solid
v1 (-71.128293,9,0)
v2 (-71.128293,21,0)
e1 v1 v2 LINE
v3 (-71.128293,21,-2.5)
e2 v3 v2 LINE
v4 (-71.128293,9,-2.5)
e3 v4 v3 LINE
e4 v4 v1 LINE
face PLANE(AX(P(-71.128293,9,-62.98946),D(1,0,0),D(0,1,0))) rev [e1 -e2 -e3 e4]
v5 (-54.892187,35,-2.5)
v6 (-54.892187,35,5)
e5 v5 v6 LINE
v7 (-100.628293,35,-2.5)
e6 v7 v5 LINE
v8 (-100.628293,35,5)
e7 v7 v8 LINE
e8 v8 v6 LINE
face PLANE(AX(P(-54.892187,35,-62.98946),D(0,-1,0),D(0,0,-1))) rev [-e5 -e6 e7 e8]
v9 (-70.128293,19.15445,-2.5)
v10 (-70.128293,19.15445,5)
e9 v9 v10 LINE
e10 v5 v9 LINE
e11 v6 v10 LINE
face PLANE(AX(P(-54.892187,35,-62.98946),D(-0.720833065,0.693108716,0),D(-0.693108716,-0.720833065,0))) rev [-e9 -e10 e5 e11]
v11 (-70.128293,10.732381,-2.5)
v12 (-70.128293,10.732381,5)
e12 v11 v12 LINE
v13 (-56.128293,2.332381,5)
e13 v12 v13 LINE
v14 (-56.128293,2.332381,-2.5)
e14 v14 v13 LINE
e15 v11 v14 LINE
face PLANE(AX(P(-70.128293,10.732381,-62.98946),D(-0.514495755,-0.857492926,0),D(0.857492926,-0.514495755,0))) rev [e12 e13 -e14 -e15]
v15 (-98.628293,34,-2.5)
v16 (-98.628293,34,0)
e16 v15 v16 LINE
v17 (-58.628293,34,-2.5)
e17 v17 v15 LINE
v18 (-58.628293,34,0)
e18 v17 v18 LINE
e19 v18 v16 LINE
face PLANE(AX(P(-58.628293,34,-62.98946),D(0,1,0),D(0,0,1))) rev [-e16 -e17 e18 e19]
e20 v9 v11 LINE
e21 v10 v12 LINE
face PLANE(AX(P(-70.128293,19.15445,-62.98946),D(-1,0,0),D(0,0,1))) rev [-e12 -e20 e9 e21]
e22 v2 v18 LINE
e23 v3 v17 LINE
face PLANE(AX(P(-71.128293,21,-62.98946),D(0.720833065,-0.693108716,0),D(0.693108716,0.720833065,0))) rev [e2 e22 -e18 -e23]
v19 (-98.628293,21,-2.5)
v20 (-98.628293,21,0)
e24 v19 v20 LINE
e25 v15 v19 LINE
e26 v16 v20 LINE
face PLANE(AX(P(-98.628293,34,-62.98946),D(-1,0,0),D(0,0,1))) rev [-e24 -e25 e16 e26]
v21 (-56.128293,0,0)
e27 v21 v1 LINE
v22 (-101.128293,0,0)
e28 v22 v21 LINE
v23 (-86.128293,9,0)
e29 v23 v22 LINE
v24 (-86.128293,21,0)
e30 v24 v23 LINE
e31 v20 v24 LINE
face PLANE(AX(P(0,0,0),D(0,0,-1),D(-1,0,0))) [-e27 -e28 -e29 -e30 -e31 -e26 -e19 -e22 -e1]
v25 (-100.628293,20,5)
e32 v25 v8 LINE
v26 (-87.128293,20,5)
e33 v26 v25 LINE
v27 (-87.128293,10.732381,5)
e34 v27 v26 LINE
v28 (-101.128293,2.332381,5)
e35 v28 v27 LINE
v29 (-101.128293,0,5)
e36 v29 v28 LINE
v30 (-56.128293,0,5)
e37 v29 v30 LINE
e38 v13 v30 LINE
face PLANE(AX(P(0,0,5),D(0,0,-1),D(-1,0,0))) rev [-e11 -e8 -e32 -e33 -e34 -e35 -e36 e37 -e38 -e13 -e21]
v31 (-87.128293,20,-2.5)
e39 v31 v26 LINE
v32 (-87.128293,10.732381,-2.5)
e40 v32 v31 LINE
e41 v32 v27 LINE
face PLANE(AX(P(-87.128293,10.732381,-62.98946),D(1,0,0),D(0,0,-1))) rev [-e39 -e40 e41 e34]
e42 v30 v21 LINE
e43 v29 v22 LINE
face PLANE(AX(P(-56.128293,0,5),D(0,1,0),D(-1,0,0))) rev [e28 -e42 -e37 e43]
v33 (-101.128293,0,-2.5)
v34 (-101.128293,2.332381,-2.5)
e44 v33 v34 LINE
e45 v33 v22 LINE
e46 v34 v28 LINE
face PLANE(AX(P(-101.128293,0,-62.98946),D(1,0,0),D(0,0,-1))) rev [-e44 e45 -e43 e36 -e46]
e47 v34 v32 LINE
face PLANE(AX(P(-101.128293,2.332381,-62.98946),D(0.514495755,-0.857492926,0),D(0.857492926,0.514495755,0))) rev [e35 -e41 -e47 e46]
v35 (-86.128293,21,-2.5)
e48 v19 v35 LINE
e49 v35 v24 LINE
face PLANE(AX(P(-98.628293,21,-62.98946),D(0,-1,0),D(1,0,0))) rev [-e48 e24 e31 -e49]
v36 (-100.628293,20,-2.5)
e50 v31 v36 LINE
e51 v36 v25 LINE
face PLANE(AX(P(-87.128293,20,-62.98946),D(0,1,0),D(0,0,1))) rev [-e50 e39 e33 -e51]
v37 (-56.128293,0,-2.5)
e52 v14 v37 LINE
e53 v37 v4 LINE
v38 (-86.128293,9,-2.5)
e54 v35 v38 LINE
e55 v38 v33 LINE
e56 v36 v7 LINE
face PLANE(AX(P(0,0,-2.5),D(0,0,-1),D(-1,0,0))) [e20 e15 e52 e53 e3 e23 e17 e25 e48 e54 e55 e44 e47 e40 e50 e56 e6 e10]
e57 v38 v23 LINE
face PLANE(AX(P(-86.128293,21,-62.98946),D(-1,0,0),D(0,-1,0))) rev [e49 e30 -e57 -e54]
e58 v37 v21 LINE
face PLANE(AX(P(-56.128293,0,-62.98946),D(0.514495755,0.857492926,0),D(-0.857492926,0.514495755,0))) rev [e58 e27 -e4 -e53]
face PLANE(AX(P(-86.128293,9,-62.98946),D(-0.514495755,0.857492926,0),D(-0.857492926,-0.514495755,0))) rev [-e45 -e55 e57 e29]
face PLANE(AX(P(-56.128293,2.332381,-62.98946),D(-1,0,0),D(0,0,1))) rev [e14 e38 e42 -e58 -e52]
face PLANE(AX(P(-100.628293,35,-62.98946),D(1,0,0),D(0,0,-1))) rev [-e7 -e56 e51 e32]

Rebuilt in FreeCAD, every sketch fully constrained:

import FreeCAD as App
import Part
import Sketcher
from FreeCAD import Vector

doc = App.newDocument("Part")
body = doc.addObject("PartDesign::Body", "Body")

# Sketch on XY plane
sketch1 = doc.addObject("Sketcher::SketchObject", "Sketch")
body.addObject(sketch1)
sketch1.AttachmentSupport = (doc.XY_Plane, [""])
sketch1.MapMode = "FlatFace"
sketch1.addGeometry([
    Part.LineSegment(Vector(-86, 9, 0), Vector(-101, 0, 0)),  # 0
    Part.LineSegment(Vector(-101, 0, 0), Vector(-56, 0, 0)),  # 1
    Part.LineSegment(Vector(-56, 0, 0), Vector(-71, 9, 0)),  # 2
    Part.LineSegment(Vector(-71, 9, 0), Vector(-71, 21, 0)),  # 3
    Part.LineSegment(Vector(-71, 21, 0), Vector(-59, 34, 0)),  # 4
    Part.LineSegment(Vector(-59, 34, 0), Vector(-99, 34, 0)),  # 5
    Part.LineSegment(Vector(-99, 34, 0), Vector(-99, 21, 0)),  # 6
    Part.LineSegment(Vector(-99, 21, 0), Vector(-86, 21, 0)),  # 7
    Part.LineSegment(Vector(-86, 21, 0), Vector(-86, 9, 0)),  # 8
], False)
sketch1.addConstraint([
    Sketcher.Constraint("Coincident", 0, 2, 1, 1),
    Sketcher.Constraint("Coincident", 1, 2, 2, 1),
    Sketcher.Constraint("Coincident", 2, 2, 3, 1),
    Sketcher.Constraint("Coincident", 3, 2, 4, 1),
    Sketcher.Constraint("Coincident", 4, 2, 5, 1),
    Sketcher.Constraint("Coincident", 5, 2, 6, 1),
    Sketcher.Constraint("Coincident", 6, 2, 7, 1),
    Sketcher.Constraint("Coincident", 7, 2, 8, 1),
    Sketcher.Constraint("Coincident", 8, 2, 0, 1),
    Sketcher.Constraint("Horizontal", 1),
    Sketcher.Constraint("Vertical", 3),
    Sketcher.Constraint("Horizontal", 5),
    Sketcher.Constraint("Vertical", 6),
    Sketcher.Constraint("Horizontal", 7),
    Sketcher.Constraint("Vertical", 8),
    Sketcher.Constraint("PointOnObject", 0, 2, -1),
    Sketcher.Constraint("Horizontal", 3, 2, 6, 2),
    Sketcher.Constraint("Horizontal", 2, 2, 8, 2),
    Sketcher.Constraint("Equal", 0, 2),
    Sketcher.Constraint("DistanceX", 1, 1, 1, 2, 45.0),
    Sketcher.Constraint("DistanceX", 5, 2, 5, 1, 40.0),
    Sketcher.Constraint("DistanceY", 3, 1, 3, 2, 12.0),
    Sketcher.Constraint("DistanceY", 6, 2, 6, 1, 13.0),
    Sketcher.Constraint("DistanceX", 7, 1, 7, 2, 12.5),
    Sketcher.Constraint("DistanceY", -1, 1, 2, 2, 9.0),
    Sketcher.Constraint("DistanceX", 2, 2, 1, 2, 15.0),
    Sketcher.Constraint("DistanceX", 0, 2, -1, 1, 101.128293),
])
pad1 = doc.addObject("PartDesign::Pad", "Pad")
body.addObject(pad1)
pad1.Profile = sketch1
pad1.Length = 5

# Sketch on XY plane
sketch2 = doc.addObject("Sketcher::SketchObject", "Sketch001")
body.addObject(sketch2)
sketch2.AttachmentSupport = (doc.XY_Plane, [""])
sketch2.MapMode = "FlatFace"
sketch2.AttachmentOffset = App.Placement(Vector(0, 0, 5), App.Rotation())
sketch2.addGeometry([
    Part.LineSegment(Vector(-54.9, 35, 0), Vector(-70.1, 19.2, 0)),  # 0
    Part.LineSegment(Vector(-70.1, 19.2, 0), Vector(-70.1, 10.7, 0)),  # 1
    Part.LineSegment(Vector(-70.1, 10.7, 0), Vector(-56.1, 2.3, 0)),  # 2
    Part.LineSegment(Vector(-56.1, 2.3, 0), Vector(-56.1, 0, 0)),  # 3
    Part.LineSegment(Vector(-56.1, 0, 0), Vector(-71.1, 9, 0)),  # 4
    Part.LineSegment(Vector(-71.1, 9, 0), Vector(-71.1, 21, 0)),  # 5
    Part.LineSegment(Vector(-71.1, 21, 0), Vector(-58.6, 34, 0)),  # 6
    Part.LineSegment(Vector(-58.6, 34, 0), Vector(-98.6, 34, 0)),  # 7
    Part.LineSegment(Vector(-98.6, 34, 0), Vector(-98.6, 21, 0)),  # 8
    Part.LineSegment(Vector(-98.6, 21, 0), Vector(-86.1, 21, 0)),  # 9
    Part.LineSegment(Vector(-86.1, 21, 0), Vector(-86.1, 9, 0)),  # 10
    Part.LineSegment(Vector(-86.1, 9, 0), Vector(-101.1, 0, 0)),  # 11
    Part.LineSegment(Vector(-101.1, 0, 0), Vector(-101.1, 2.3, 0)),  # 12
    Part.LineSegment(Vector(-101.1, 2.3, 0), Vector(-87.1, 10.7, 0)),  # 13
    Part.LineSegment(Vector(-87.1, 10.7, 0), Vector(-87.1, 20, 0)),  # 14
    Part.LineSegment(Vector(-87.1, 20, 0), Vector(-100.6, 20, 0)),  # 15
    Part.LineSegment(Vector(-100.6, 20, 0), Vector(-100.6, 35, 0)),  # 16
    Part.LineSegment(Vector(-100.6, 35, 0), Vector(-54.9, 35, 0)),  # 17
], False)
sketch2.addConstraint([
    Sketcher.Constraint("Coincident", 0, 2, 1, 1),
    Sketcher.Constraint("Coincident", 1, 2, 2, 1),
    Sketcher.Constraint("Coincident", 2, 2, 3, 1),
    Sketcher.Constraint("Coincident", 3, 2, 4, 1),
    Sketcher.Constraint("Coincident", 4, 2, 5, 1),
    Sketcher.Constraint("Coincident", 5, 2, 6, 1),
    Sketcher.Constraint("Coincident", 6, 2, 7, 1),
    Sketcher.Constraint("Coincident", 7, 2, 8, 1),
    Sketcher.Constraint("Coincident", 8, 2, 9, 1),
    Sketcher.Constraint("Coincident", 9, 2, 10, 1),
    Sketcher.Constraint("Coincident", 10, 2, 11, 1),
    Sketcher.Constraint("Coincident", 11, 2, 12, 1),
    Sketcher.Constraint("Coincident", 12, 2, 13, 1),
    Sketcher.Constraint("Coincident", 13, 2, 14, 1),
    Sketcher.Constraint("Coincident", 14, 2, 15, 1),
    Sketcher.Constraint("Coincident", 15, 2, 16, 1),
    Sketcher.Constraint("Coincident", 16, 2, 17, 1),
    Sketcher.Constraint("Coincident", 17, 2, 0, 1),
    Sketcher.Constraint("Vertical", 1),
    Sketcher.Constraint("Vertical", 3),
    Sketcher.Constraint("Vertical", 5),
    Sketcher.Constraint("Horizontal", 7),
    Sketcher.Constraint("Vertical", 8),
    Sketcher.Constraint("Horizontal", 9),
    Sketcher.Constraint("Vertical", 10),
    Sketcher.Constraint("Vertical", 12),
    Sketcher.Constraint("Vertical", 14),
    Sketcher.Constraint("Horizontal", 15),
    Sketcher.Constraint("Vertical", 16),
    Sketcher.Constraint("Horizontal", 17),
    Sketcher.Constraint("PointOnObject", 3, 2, -1),
    Sketcher.Constraint("PointOnObject", 11, 2, -1),
    Sketcher.Constraint("Parallel", 2, 4),
    Sketcher.Constraint("Parallel", 0, 6),
    Sketcher.Constraint("Parallel", 11, 13),
    Sketcher.Constraint("Horizontal", 5, 2, 8, 2),
    Sketcher.Constraint("Horizontal", 4, 2, 10, 2),
    Sketcher.Constraint("Horizontal", 2, 2, 12, 2),
    Sketcher.Constraint("Horizontal", 1, 2, 13, 2),
    Sketcher.Constraint("Equal", 4, 11),
    Sketcher.Constraint("DistanceX", 7, 2, 7, 1, 40.0),
    Sketcher.Constraint("DistanceY", 5, 1, 5, 2, 12.0),
    Sketcher.Constraint("DistanceY", 8, 2, 8, 1, 13.0),
    Sketcher.Constraint("DistanceY", 16, 1, 16, 2, 15.0),
    Sketcher.Constraint("DistanceX", 9, 1, 9, 2, 12.5),
    Sketcher.Constraint("DistanceX", 15, 2, 15, 1, 13.5),
    Sketcher.Constraint("DistanceY", -1, 1, 4, 2, 9.0),
    Sketcher.Constraint("DistanceY", -1, 1, 14, 2, 20.0),
    Sketcher.Constraint("DistanceX", 1, 2, 2, 2, 14.0),
    Sketcher.Constraint("DistanceX", 4, 2, 1, 2, 1.0),
    Sketcher.Constraint("DistanceX", 9, 2, 5, 2, 15.0),
    Sketcher.Constraint("DistanceY", 1, 2, 1, 1, 8.422069),
    Sketcher.Constraint("DistanceY", 3, 2, 3, 1, 2.332381),
    Sketcher.Constraint("DistanceX", 0, 2, -1, 1, 70.128293),
])
pad2 = doc.addObject("PartDesign::Pad", "Pad001")
body.addObject(pad2)
pad2.Profile = sketch2
pad2.Length = 7.5
pad2.Reversed = True

doc.recompute()
